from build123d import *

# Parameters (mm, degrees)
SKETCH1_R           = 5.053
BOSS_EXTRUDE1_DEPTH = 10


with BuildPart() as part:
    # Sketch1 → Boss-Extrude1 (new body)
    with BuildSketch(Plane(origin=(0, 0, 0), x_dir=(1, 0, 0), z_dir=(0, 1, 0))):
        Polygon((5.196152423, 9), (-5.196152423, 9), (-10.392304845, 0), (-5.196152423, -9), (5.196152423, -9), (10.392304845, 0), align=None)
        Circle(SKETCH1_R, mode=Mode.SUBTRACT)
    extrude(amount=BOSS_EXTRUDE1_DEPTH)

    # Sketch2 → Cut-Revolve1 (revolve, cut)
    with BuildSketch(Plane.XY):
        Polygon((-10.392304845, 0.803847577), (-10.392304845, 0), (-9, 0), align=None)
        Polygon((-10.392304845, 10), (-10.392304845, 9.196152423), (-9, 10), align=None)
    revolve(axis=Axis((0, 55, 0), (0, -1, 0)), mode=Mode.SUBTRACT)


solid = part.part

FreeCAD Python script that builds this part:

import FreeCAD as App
import Part
import Sketcher
from FreeCAD import Vector
Q = App.Units.Quantity

doc = App.newDocument("Part")
body = doc.addObject("PartDesign::Body", "Body")

# Sketch on XZ plane
sketch1 = body.newObject("Sketcher::SketchObject", "Sketch")
sketch1.AttachmentSupport = (doc.getObject("XZ_Plane"), [""])
sketch1.MapMode = "FlatFace"
sketch1.addGeometry(Part.LineSegment(Vector(5.196152, -9, 0), Vector(-5.196152, -9, 0)), False)
sketch1.addGeometry(Part.LineSegment(Vector(-5.196152, -9, 0), Vector(-10.392305, 0, 0)), False)
sketch1.addGeometry(Part.LineSegment(Vector(-10.392305, 0, 0), Vector(-5.196152, 9, 0)), False)
sketch1.addGeometry(Part.LineSegment(Vector(-5.196152, 9, 0), Vector(5.196152, 9, 0)), False)
sketch1.addGeometry(Part.LineSegment(Vector(5.196152, 9, 0), Vector(10.392305, 0, 0)), False)
sketch1.addGeometry(Part.LineSegment(Vector(10.392305, 0, 0), Vector(5.196152, -9, 0)), False)
sketch1.addGeometry(Part.Circle(Vector(0, 0, 0), Vector(0, 0, 1), 5.053), False)
sketch1.addConstraint(Sketcher.Constraint("Coincident", 0, 2, 1, 1))
sketch1.addConstraint(Sketcher.Constraint("Coincident", 1, 2, 2, 1))
sketch1.addConstraint(Sketcher.Constraint("Coincident", 2, 2, 3, 1))
sketch1.addConstraint(Sketcher.Constraint("Coincident", 3, 2, 4, 1))
sketch1.addConstraint(Sketcher.Constraint("Coincident", 4, 2, 5, 1))
sketch1.addConstraint(Sketcher.Constraint("Coincident", 5, 2, 0, 1))
sketch1.addConstraint(Sketcher.Constraint("Horizontal", 0))
sketch1.addConstraint(Sketcher.Constraint("Horizontal", 3))
sketch1.addConstraint(Sketcher.Constraint("Coincident", 6, 3, -1, 1))
sketch1.addConstraint(Sketcher.Constraint("Symmetric", 0, 2, 3, 2, -1, 1))
sketch1.addConstraint(Sketcher.Constraint("Symmetric", 1, 2, 4, 2, -1, 1))
sketch1.addConstraint(Sketcher.Constraint("PointOnObject", 1, 2, -1))
sketch1.addConstraint(Sketcher.Constraint("Parallel", 2, 5))
sketch1.addConstraint(Sketcher.Constraint("Vertical", 0, 2, 2, 2))
sketch1.addConstraint(Sketcher.Constraint("Angle", 1, Q("120 deg")))
sketch1.addConstraint(Sketcher.Constraint("Diameter", 6, 10.106))
sketch1.addConstraint(Sketcher.Constraint("DistanceY", 0, 2, -1, 1, 9.0))
sketch1.addConstraint(Sketcher.Constraint("DistanceX", 0, 2, 0, 1, 10.392305))
pad1 = body.newObject("PartDesign::Pad", "Pad")
pad1.Profile = sketch1
pad1.Length = 10
pad1.Reversed = True

# Sketch on XY plane
sketch2 = body.newObject("Sketcher::SketchObject", "Sketch001")
sketch2.AttachmentSupport = (doc.getObject("XY_Plane"), [""])
sketch2.MapMode = "FlatFace"
sketch2.addGeometry(Part.LineSegment(Vector(-10.392305, 0.803848, 0), Vector(-10.392305, 0, 0)), False)
sketch2.addGeometry(Part.LineSegment(Vector(-10.392305, 0, 0), Vector(-9, 0, 0)), False)
sketch2.addGeometry(Part.LineSegment(Vector(-9, 0, 0), Vector(-10.392305, 0.803848, 0)), False)
sketch2.addGeometry(Part.LineSegment(Vector(-10.392305, 10, 0), Vector(-10.392305, 9.196152, 0)), False)
sketch2.addGeometry(Part.LineSegment(Vector(-10.392305, 9.196152, 0), Vector(-9, 10, 0)), False)
sketch2.addGeometry(Part.LineSegment(Vector(-9, 10, 0), Vector(-10.392305, 10, 0)), False)
sketch2.addConstraint(Sketcher.Constraint("Coincident", 0, 2, 1, 1))
sketch2.addConstraint(Sketcher.Constraint("Coincident", 1, 2, 2, 1))
sketch2.addConstraint(Sketcher.Constraint("Coincident", 2, 2, 0, 1))
sketch2.addConstraint(Sketcher.Constraint("Coincident", 3, 2, 4, 1))
sketch2.addConstraint(Sketcher.Constraint("Coincident", 4, 2, 5, 1))
sketch2.addConstraint(Sketcher.Constraint("Coincident", 5, 2, 3, 1))
sketch2.addConstraint(Sketcher.Constraint("Vertical", 0))
sketch2.addConstraint(Sketcher.Constraint("Horizontal", 1))
sketch2.addConstraint(Sketcher.Constraint("Vertical", 3))
sketch2.addConstraint(Sketcher.Constraint("Horizontal", 5))
sketch2.addConstraint(Sketcher.Constraint("PointOnObject", 0, 2, -1))
sketch2.addConstraint(Sketcher.Constraint("Vertical", 2, 2, 3, 2))
sketch2.addConstraint(Sketcher.Constraint("Vertical", 1, 2, 4, 2))
sketch2.addConstraint(Sketcher.Constraint("Equal", 0, 3))
sketch2.addConstraint(Sketcher.Constraint("Angle", 2, Q("150 deg")))
sketch2.addConstraint(Sketcher.Constraint("DistanceX", 1, 2, -1, 1, 9.0))
sketch2.addConstraint(Sketcher.Constraint("DistanceY", -1, 1, 4, 2, 10.0))
sketch2.addConstraint(Sketcher.Constraint("DistanceX", 1, 1, 1, 2, 1.392305))
groove = body.newObject("PartDesign::Groove", "Groove")
groove.Profile = sketch2
groove.ReferenceAxis = (sketch2, ["V_Axis"])
groove.Angle = 360

doc.recompute()
